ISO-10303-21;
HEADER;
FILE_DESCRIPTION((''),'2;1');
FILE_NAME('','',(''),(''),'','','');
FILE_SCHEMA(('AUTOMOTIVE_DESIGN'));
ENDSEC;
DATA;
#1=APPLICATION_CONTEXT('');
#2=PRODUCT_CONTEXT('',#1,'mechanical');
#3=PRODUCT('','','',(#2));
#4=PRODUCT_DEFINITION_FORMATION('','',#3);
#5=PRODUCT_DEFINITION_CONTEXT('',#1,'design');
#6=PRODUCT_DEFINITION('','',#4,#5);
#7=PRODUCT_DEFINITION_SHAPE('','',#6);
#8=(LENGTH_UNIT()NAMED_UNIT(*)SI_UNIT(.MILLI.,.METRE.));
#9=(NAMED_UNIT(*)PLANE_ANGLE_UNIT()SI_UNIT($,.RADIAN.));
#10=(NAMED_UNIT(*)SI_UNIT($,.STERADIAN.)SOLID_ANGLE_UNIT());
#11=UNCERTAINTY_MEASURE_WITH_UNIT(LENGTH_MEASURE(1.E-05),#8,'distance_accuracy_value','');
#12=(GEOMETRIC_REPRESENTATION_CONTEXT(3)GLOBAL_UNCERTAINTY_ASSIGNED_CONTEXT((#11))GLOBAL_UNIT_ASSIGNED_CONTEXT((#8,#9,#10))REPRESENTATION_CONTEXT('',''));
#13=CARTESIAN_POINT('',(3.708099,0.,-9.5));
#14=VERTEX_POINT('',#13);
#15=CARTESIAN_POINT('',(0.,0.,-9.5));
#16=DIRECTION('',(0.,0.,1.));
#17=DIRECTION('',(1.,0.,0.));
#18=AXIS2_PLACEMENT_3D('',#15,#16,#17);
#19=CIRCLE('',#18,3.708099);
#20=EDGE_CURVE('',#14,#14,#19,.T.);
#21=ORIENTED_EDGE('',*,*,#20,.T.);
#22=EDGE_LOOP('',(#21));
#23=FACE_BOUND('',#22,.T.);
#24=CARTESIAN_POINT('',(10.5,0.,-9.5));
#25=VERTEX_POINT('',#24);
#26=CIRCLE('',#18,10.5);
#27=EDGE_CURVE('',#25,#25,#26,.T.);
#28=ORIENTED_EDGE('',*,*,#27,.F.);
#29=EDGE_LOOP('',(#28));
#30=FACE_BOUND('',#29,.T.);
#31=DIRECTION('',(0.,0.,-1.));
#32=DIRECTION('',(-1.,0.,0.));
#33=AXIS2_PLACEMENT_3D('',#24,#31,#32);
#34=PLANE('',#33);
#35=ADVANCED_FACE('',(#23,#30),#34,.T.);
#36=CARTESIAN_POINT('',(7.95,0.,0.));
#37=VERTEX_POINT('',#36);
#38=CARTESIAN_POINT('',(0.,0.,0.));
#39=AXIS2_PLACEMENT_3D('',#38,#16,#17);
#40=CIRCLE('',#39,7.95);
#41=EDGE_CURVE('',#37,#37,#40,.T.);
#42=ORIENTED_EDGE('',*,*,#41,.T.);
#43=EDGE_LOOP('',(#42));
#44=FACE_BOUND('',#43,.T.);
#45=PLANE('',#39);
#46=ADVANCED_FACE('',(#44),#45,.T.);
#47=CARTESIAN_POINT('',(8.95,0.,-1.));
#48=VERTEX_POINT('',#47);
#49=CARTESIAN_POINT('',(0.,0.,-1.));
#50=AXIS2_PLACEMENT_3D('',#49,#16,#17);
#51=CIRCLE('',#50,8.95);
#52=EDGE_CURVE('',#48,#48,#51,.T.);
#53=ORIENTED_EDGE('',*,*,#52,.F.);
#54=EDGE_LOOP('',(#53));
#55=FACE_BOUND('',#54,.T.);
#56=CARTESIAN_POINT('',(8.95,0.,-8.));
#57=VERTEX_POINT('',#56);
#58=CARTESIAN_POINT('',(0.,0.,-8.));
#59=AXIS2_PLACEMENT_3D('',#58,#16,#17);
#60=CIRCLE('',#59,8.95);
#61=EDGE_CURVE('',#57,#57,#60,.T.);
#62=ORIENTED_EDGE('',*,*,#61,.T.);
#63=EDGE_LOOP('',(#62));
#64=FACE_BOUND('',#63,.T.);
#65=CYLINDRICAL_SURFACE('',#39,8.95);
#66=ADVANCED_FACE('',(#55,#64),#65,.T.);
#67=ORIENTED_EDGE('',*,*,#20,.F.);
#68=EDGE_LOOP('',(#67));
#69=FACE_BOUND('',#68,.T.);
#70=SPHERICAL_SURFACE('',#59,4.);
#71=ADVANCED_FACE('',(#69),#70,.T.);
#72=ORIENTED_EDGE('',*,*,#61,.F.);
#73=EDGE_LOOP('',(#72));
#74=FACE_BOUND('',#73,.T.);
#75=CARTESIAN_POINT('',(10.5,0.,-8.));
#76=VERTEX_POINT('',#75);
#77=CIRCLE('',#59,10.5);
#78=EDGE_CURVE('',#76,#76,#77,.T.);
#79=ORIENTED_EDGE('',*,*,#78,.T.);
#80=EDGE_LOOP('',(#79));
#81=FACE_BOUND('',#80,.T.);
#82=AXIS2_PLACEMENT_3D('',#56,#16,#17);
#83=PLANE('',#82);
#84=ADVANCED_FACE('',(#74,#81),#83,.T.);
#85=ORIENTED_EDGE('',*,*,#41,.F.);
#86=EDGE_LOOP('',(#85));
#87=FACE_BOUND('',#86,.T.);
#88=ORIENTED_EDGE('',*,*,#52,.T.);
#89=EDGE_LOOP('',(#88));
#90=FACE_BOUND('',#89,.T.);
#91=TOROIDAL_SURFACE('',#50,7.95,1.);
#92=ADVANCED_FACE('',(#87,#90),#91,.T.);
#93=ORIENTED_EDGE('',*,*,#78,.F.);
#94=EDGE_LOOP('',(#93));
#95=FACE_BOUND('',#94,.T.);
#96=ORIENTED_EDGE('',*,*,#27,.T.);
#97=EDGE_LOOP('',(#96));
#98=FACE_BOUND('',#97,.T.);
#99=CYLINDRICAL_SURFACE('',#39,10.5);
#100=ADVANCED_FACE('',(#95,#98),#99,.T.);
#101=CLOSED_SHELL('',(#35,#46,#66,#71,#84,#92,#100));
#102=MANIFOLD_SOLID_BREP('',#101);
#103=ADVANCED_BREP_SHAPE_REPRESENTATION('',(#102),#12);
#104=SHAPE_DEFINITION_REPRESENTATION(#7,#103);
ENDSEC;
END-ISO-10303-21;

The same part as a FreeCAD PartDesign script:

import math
import FreeCAD as App
import Part
import Sketcher

doc = App.newDocument("Part")
body = doc.addObject("PartDesign::Body", "Body")

sketch1 = doc.addObject("Sketcher::SketchObject", "Sketch")
body.addObject(sketch1)
sketch1.AttachmentSupport = (doc.XZ_Plane, [""])
sketch1.MapMode = "FlatFace"
sketch1.addGeometry(Part.LineSegment(App.Vector(0, 0, 0), App.Vector(8, 0, 0)), False)
sketch1.addGeometry(Part.ArcOfCircle(Part.Circle(App.Vector(7.9, -1, 0), App.Vector(0, 0, 1), 1), math.radians(0), math.radians(90)), False)
sketch1.addGeometry(Part.LineSegment(App.Vector(8.9, -1, 0), App.Vector(8.9, -8, 0)), False)
sketch1.addGeometry(Part.LineSegment(App.Vector(8.9, -8, 0), App.Vector(10.5, -8, 0)), False)
sketch1.addGeometry(Part.LineSegment(App.Vector(10.5, -8, 0), App.Vector(10.5, -9.5, 0)), False)
sketch1.addGeometry(Part.LineSegment(App.Vector(10.5, -9.5, 0), App.Vector(3.7, -9.5, 0)), False)
sketch1.addGeometry(Part.ArcOfCircle(Part.Circle(App.Vector(0, -8, 0), App.Vector(0, 0, 1), 4), math.radians(-90), math.radians(-22)), False)
sketch1.addGeometry(Part.LineSegment(App.Vector(0, -12, 0), App.Vector(0, 0, 0)), False)
sketch1.addConstraint(Sketcher.Constraint("Tangent", 0, 2, 1, 2))
sketch1.addConstraint(Sketcher.Constraint("Tangent", 1, 1, 2, 1))
sketch1.addConstraint(Sketcher.Constraint("Coincident", 2, 2, 3, 1))
sketch1.addConstraint(Sketcher.Constraint("Coincident", 3, 2, 4, 1))
sketch1.addConstraint(Sketcher.Constraint("Coincident", 4, 2, 5, 1))
sketch1.addConstraint(Sketcher.Constraint("Coincident", 5, 2, 6, 2))
sketch1.addConstraint(Sketcher.Constraint("Coincident", 6, 1, 7, 1))
sketch1.addConstraint(Sketcher.Constraint("Coincident", 7, 2, 0, 1))
sketch1.addConstraint(Sketcher.Constraint("Horizontal", 0))
sketch1.addConstraint(Sketcher.Constraint("Vertical", 2))
sketch1.addConstraint(Sketcher.Constraint("Horizontal", 3))
sketch1.addConstraint(Sketcher.Constraint("Vertical", 4))
sketch1.addConstraint(Sketcher.Constraint("Horizontal", 5))
sketch1.addConstraint(Sketcher.Constraint("Vertical", 7))
sketch1.addConstraint(Sketcher.Constraint("Coincident", 7, 2, -1, 1))
sketch1.addConstraint(Sketcher.Constraint("PointOnObject", 6, 3, -2))
sketch1.addConstraint(Sketcher.Constraint("Horizontal", 6, 3, 2, 2))
sketch1.addConstraint(Sketcher.Constraint("Radius", 1, 1.0))
sketch1.addConstraint(Sketcher.Constraint("Radius", 6, 4.0))
sketch1.addConstraint(Sketcher.Constraint("DistanceY", 2, 2, 2, 1, 7.0))
sketch1.addConstraint(Sketcher.Constraint("DistanceY", 4, 2, 4, 1, 1.5))
sketch1.addConstraint(Sketcher.Constraint("DistanceX", 0, 1, 0, 2, 7.95))
sketch1.addConstraint(Sketcher.Constraint("DistanceX", 3, 1, 3, 2, 1.55))
revolution = doc.addObject("PartDesign::Revolution", "Revolution")
body.addObject(revolution)
revolution.Profile = sketch1
revolution.ReferenceAxis = (sketch1, ["V_Axis"])
revolution.Angle = 360

doc.recompute()
